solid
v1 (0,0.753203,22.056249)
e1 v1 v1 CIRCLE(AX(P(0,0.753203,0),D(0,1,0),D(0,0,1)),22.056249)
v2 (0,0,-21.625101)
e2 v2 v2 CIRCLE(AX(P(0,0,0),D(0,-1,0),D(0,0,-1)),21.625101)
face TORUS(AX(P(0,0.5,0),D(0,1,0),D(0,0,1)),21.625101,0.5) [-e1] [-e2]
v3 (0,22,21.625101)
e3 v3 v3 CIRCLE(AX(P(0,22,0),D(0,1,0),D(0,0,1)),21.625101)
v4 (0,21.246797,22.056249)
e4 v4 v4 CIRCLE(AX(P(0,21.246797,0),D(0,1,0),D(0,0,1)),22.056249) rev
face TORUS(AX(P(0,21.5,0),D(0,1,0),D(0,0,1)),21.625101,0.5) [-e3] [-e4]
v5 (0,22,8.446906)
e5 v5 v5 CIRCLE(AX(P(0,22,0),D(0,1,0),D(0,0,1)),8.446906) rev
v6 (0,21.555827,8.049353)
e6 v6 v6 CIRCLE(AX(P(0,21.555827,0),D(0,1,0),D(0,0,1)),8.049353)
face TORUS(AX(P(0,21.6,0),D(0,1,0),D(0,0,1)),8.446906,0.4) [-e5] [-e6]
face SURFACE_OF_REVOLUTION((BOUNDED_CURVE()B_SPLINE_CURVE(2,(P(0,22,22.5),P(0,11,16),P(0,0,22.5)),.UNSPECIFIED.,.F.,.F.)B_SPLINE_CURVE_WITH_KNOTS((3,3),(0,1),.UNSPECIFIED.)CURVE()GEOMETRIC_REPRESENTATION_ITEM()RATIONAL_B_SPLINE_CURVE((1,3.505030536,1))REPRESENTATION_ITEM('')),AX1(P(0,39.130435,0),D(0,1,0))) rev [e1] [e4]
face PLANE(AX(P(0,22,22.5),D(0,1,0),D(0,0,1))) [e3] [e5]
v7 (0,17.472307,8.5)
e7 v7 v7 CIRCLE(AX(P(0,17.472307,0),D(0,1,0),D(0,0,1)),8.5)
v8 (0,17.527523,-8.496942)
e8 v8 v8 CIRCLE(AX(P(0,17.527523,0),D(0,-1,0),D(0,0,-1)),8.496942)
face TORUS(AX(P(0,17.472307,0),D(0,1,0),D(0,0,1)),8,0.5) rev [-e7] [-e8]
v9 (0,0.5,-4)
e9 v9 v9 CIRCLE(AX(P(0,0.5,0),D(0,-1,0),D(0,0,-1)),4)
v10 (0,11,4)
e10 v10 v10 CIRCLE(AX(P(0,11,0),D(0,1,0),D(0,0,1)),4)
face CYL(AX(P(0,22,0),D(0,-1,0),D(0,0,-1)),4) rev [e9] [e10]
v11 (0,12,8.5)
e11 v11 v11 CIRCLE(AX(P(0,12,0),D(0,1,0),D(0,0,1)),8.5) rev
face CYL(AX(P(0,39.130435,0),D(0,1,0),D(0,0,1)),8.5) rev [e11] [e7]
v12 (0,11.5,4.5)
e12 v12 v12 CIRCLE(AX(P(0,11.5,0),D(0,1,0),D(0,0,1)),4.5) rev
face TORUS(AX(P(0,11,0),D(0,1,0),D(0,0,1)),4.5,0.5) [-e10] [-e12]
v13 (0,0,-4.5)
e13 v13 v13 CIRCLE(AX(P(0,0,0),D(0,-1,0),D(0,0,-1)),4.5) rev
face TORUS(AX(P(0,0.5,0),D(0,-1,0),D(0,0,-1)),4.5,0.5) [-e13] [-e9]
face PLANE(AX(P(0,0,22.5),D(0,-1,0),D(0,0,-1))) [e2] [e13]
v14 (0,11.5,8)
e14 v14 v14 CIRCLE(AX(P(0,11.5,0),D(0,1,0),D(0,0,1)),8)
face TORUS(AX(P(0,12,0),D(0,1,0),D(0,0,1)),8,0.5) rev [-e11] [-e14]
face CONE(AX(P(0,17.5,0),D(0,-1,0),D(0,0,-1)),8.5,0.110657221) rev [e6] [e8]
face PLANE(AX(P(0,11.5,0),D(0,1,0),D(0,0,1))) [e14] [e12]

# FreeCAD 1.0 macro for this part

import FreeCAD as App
import Part
import Sketcher
from FreeCAD import Vector


def edges_at(feature, points):
    """Names of the edges that pass closest to the given points."""
    edges = feature.Shape.Edges
    near = lambda p: min(range(len(edges)), key=lambda i: edges[i].distToShape(Part.Vertex(*p))[0])
    return sorted({f"Edge{near(p) + 1}" for p in points})

doc = App.newDocument("Part")
params = doc.addObject("Spreadsheet::Sheet", "Params")
for row, (alias, value) in enumerate([
    ("sketch1_width", "6 mm"),
    ("sketch1_width2", "11.5 mm"),
    ("sketch1_height", "8.5 mm"),
    ("sketch1_height2", "14.5 mm"),
    ("revolution_angle", "360 deg"),
    ("sketch2_diameter", "8 mm"),
    ("fillet_radius", "0.5 mm"),
    ("fillet2_radius", "0.4 mm"),
], start=1):
    params.set(f"A{row}", alias)
    params.set(f"B{row}", "=" + value)
    params.setAlias(f"B{row}", alias)

body = doc.addObject("PartDesign::Body", "Body")

# Sketch on YZ plane
sketch1 = body.newObject("Sketcher::SketchObject", "Sketch")
sketch1.AttachmentSupport = (doc.getObject("YZ_Plane"), [""])
sketch1.MapMode = "FlatFace"
sketch1.addGeometry([
    Part.LineSegment(Vector(0, 22.5, 0), Vector(0, 0, 0)),  # 0
    Part.LineSegment(Vector(0, 0, 0), Vector(11.5, 0, 0)),  # 1
    Part.LineSegment(Vector(11.5, 0, 0), Vector(11.5, 8.5, 0)),  # 2
    Part.LineSegment(Vector(11.5, 8.5, 0), Vector(17.5, 8.5, 0)),  # 3
    Part.LineSegment(Vector(17.5, 8.5, 0), Vector(22, 8, 0)),  # 4
    Part.LineSegment(Vector(22, 8, 0), Vector(22, 22.5, 0)),  # 5
    Part.BSplineCurve([Vector(22, 22.5, 0), Vector(11, 16, 0), Vector(0, 22.5, 0)], [3, 3], [0, 1], False, 2, [1, 3.505030536, 1], False),  # 6
], False)
sketch1.addConstraint([
    Sketcher.Constraint("Block", 6),
    Sketcher.Constraint("Coincident", 0, 2, 1, 1),
    Sketcher.Constraint("Coincident", 1, 2, 2, 1),
    Sketcher.Constraint("Coincident", 2, 2, 3, 1),
    Sketcher.Constraint("Coincident", 3, 2, 4, 1),
    Sketcher.Constraint("Coincident", 4, 2, 5, 1),
    Sketcher.Constraint("Coincident", 5, 2, 6, 1),
    Sketcher.Constraint("Coincident", 6, 2, 0, 1),
    Sketcher.Constraint("Vertical", 0),
    Sketcher.Constraint("Horizontal", 1),
    Sketcher.Constraint("Vertical", 2),
    Sketcher.Constraint("Horizontal", 3),
    Sketcher.Constraint("Vertical", 5),
    Sketcher.Constraint("PointOnObject", 1, 2, -1),
    Sketcher.Constraint("DistanceX", 3, 1, 3, 2, 6.0),
    Sketcher.Constraint("DistanceX", 1, 1, 1, 2, 11.5),
    Sketcher.Constraint("DistanceY", 2, 1, 2, 2, 8.5),
    Sketcher.Constraint("DistanceY", 5, 1, 5, 2, 14.5),
])
sketch1.setExpression("Constraints[14]", "Params.sketch1_width")
sketch1.setExpression("Constraints[15]", "Params.sketch1_width2")
sketch1.setExpression("Constraints[16]", "Params.sketch1_height")
sketch1.setExpression("Constraints[17]", "Params.sketch1_height2")
revolution = body.newObject("PartDesign::Revolution", "Revolution")
revolution.Profile = sketch1
revolution.ReferenceAxis = (sketch1, ["H_Axis"])
revolution.setExpression("Angle", "Params.revolution_angle")

# Sketch on XZ plane
sketch2 = body.newObject("Sketcher::SketchObject", "Sketch001")
sketch2.AttachmentSupport = (doc.getObject("XZ_Plane"), [""])
sketch2.MapMode = "FlatFace"
sketch2.addGeometry(Part.Circle(Vector(0, 0, 0), Vector(0, 0, 1), 4), False)
sketch2.addConstraint([
    Sketcher.Constraint("Coincident", 0, 3, -1, 1),
    Sketcher.Constraint("Diameter", 0, 8.0),
])
sketch2.setExpression("Constraints[1]", "Params.sketch2_diameter")
pocket1 = body.newObject("PartDesign::Pocket", "Pocket")
pocket1.Profile = sketch2
pocket1.Type = "ThroughAll"
doc.recompute()

fillet = body.newObject("PartDesign::Fillet", "Fillet")
fillet.Base = (pocket1, edges_at(pocket1, [
    (0, 11.5, 4),
    (0, 0, 4),
    (0, 0, -22.5),
    (0, 22, -22.5),
    (0, 17.5, -8.5),
    (0, 11.5, -8.5),
]))
fillet.setExpression("Radius", "Params.fillet_radius")
doc.recompute()

fillet2 = body.newObject("PartDesign::Fillet", "Fillet001")
fillet2.Base = (fillet, edges_at(fillet, [(0, 22, -8)]))
fillet2.setExpression("Radius", "Params.fillet2_radius")

doc.recompute()
